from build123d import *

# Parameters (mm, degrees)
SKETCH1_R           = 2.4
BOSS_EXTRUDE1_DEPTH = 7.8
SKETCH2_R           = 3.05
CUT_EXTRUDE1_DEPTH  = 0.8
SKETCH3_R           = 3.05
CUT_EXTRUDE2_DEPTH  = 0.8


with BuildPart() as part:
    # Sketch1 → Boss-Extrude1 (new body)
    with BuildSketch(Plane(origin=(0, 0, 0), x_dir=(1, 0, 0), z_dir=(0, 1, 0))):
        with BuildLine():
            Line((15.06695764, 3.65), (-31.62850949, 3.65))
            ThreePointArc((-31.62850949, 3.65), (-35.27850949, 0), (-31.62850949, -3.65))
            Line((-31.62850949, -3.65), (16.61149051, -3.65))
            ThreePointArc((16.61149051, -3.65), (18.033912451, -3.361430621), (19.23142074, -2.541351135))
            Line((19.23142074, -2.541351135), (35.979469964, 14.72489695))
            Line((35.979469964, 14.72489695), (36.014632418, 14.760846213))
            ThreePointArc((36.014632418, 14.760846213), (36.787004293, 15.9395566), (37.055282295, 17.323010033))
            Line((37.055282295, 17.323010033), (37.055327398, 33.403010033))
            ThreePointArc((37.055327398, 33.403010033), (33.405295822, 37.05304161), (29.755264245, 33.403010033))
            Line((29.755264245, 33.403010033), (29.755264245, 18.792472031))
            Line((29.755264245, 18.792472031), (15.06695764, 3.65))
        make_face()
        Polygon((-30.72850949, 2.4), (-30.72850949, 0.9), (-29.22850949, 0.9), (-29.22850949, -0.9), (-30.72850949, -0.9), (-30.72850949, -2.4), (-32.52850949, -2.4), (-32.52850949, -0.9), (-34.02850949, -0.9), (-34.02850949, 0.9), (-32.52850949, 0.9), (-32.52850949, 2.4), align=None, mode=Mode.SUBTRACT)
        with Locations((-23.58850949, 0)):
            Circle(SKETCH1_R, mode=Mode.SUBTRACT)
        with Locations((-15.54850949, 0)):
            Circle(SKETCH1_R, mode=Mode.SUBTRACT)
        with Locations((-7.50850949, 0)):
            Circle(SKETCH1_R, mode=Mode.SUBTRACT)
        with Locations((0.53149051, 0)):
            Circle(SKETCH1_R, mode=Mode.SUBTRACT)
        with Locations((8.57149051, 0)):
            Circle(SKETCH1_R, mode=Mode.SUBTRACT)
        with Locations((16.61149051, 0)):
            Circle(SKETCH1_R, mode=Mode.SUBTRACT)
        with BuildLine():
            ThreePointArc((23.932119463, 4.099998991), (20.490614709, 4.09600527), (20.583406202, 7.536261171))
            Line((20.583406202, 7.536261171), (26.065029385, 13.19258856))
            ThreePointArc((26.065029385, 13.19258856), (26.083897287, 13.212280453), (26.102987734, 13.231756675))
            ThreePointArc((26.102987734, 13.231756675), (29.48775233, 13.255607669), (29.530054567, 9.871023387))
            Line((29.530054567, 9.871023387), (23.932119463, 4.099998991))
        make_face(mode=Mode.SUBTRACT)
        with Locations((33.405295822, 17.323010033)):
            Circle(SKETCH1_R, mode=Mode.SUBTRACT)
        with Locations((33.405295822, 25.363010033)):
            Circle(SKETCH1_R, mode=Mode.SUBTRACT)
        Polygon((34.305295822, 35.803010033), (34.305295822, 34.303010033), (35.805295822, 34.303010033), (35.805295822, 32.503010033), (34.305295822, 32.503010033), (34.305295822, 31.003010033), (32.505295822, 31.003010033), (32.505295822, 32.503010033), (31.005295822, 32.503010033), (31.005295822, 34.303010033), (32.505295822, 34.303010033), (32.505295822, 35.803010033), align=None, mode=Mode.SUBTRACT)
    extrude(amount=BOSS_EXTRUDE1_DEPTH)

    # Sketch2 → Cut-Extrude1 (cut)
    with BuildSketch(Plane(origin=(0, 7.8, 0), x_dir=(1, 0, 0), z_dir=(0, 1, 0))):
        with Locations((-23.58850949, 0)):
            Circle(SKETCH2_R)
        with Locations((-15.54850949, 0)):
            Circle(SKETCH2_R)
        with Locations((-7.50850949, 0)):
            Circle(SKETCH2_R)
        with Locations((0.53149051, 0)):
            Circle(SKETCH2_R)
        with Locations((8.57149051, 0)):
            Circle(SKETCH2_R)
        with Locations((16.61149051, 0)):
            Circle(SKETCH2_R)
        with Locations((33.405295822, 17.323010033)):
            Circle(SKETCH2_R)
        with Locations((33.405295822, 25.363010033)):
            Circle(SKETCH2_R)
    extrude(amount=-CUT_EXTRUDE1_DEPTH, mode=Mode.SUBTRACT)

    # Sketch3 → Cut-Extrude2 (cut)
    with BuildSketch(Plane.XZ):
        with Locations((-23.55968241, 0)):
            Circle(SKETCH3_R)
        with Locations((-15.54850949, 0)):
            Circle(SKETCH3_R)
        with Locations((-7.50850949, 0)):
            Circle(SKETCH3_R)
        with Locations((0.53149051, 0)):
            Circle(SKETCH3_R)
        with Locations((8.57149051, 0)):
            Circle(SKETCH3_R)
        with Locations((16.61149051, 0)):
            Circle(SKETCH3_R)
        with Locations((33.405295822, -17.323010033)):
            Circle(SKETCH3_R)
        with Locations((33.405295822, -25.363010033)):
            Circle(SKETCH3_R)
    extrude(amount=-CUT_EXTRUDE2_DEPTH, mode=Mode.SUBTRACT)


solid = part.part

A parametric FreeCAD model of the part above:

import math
import FreeCAD as App
import Part
import Sketcher
from FreeCAD import Vector

doc = App.newDocument("Part")
body = doc.addObject("PartDesign::Body", "Body")

# Sketch on XZ plane
sketch1 = body.newObject("Sketcher::SketchObject", "Sketch")
sketch1.AttachmentSupport = (doc.getObject("XZ_Plane"), [""])
sketch1.MapMode = "FlatFace"
sketch1.addGeometry(Part.LineSegment(Vector(15.066958, -3.65, 0), Vector(-31.628509, -3.65, 0)), False)
sketch1.addGeometry(Part.ArcOfCircle(Part.Circle(Vector(-31.628509, 0, 0), Vector(0, 0, 1), 3.65), math.radians(90), math.radians(270)), False)
sketch1.addGeometry(Part.LineSegment(Vector(-31.628509, 3.65, 0), Vector(16.611491, 3.65, 0)), False)
sketch1.addGeometry(Part.ArcOfCircle(Part.Circle(Vector(16.611491, 0, 0), Vector(0, 0, 1), 3.65), math.radians(44.127755), math.radians(90)), False)
sketch1.addGeometry(Part.LineSegment(Vector(19.231421, 2.541351, 0), Vector(35.97947, -14.724897, 0)), False)
sketch1.addGeometry(Part.LineSegment(Vector(35.97947, -14.724897, 0), Vector(36.014632, -14.760846, 0)), False)
sketch1.addGeometry(Part.ArcOfCircle(Part.Circle(Vector(33.405296, -17.313073, 0), Vector(0, 0, 1), 3.65), math.radians(-0.155984), math.radians(44.366082)), False)
sketch1.addGeometry(Part.LineSegment(Vector(37.055282, -17.32301, 0), Vector(37.055327, -33.40301, 0)), False)
sketch1.addGeometry(Part.ArcOfCircle(Part.Circle(Vector(33.405296, -33.40301, 0), Vector(0, 0, 1), 3.650032), math.radians(180), math.radians(360)), False)
sketch1.addGeometry(Part.LineSegment(Vector(29.755264, -33.40301, 0), Vector(29.755264, -18.792472, 0)), False)
sketch1.addGeometry(Part.LineSegment(Vector(29.755264, -18.792472, 0), Vector(15.066958, -3.65, 0)), False)
sketch1.addGeometry(Part.LineSegment(Vector(-32.528509, -2.4, 0), Vector(-30.728509, -2.4, 0)), False)
sketch1.addGeometry(Part.LineSegment(Vector(-30.728509, -2.4, 0), Vector(-30.728509, -0.9, 0)), False)
sketch1.addGeometry(Part.LineSegment(Vector(-30.728509, -0.9, 0), Vector(-29.228509, -0.9, 0)), False)
sketch1.addGeometry(Part.LineSegment(Vector(-29.228509, -0.9, 0), Vector(-29.228509, 0.9, 0)), False)
sketch1.addGeometry(Part.LineSegment(Vector(-29.228509, 0.9, 0), Vector(-30.728509, 0.9, 0)), False)
sketch1.addGeometry(Part.LineSegment(Vector(-30.728509, 0.9, 0), Vector(-30.728509, 2.4, 0)), False)
sketch1.addGeometry(Part.LineSegment(Vector(-30.728509, 2.4, 0), Vector(-32.528509, 2.4, 0)), False)
sketch1.addGeometry(Part.LineSegment(Vector(-32.528509, 2.4, 0), Vector(-32.528509, 0.9, 0)), False)
sketch1.addGeometry(Part.LineSegment(Vector(-32.528509, 0.9, 0), Vector(-34.028509, 0.9, 0)), False)
sketch1.addGeometry(Part.LineSegment(Vector(-34.028509, 0.9, 0), Vector(-34.028509, -0.9, 0)), False)
sketch1.addGeometry(Part.LineSegment(Vector(-34.028509, -0.9, 0), Vector(-32.528509, -0.9, 0)), False)
sketch1.addGeometry(Part.LineSegment(Vector(-32.528509, -0.9, 0), Vector(-32.528509, -2.4, 0)), False)
sketch1.addGeometry(Part.Circle(Vector(-23.588509, 0, 0), Vector(0, 0, 1), 2.4), False)
sketch1.addGeometry(Part.Circle(Vector(-15.548509, 0, 0), Vector(0, 0, 1), 2.4), False)
sketch1.addGeometry(Part.Circle(Vector(-7.508509, 0, 0), Vector(0, 0, 1), 2.4), False)
sketch1.addGeometry(Part.Circle(Vector(0.531491, 0, 0), Vector(0, 0, 1), 2.4), False)
sketch1.addGeometry(Part.Circle(Vector(8.571491, 0, 0), Vector(0, 0, 1), 2.4), False)
sketch1.addGeometry(Part.Circle(Vector(16.611491, 0, 0), Vector(0, 0, 1), 2.4), False)
sketch1.addGeometry(Part.LineSegment(Vector(29.530055, -9.871023, 0), Vector(23.932119, -4.099999, 0)), False)
sketch1.addGeometry(Part.ArcOfCircle(Part.Circle(Vector(22.209426, -5.771024, 0), Vector(0, 0, 1), 2.4), math.radians(44.127755), math.radians(227.350778)), False)
sketch1.addGeometry(Part.LineSegment(Vector(20.583406, -7.536261, 0), Vector(26.065029, -13.192589, 0)), False)
sketch1.addGeometry(Part.ArcOfCircle(Part.Circle(Vector(27.80736, -11.542049, 0), Vector(0, 0, 1), 2.399999), math.radians(-136.549716), math.radians(-135.247561)), False)
sketch1.addGeometry(Part.ArcOfCircle(Part.Circle(Vector(27.807361, -11.542049, 0), Vector(0, 0, 1), 2.4), math.radians(-135.247561), math.radians(44.127755)), False)
sketch1.addGeometry(Part.Circle(Vector(33.405296, -17.32301, 0), Vector(0, 0, 1), 2.4), False)
sketch1.addGeometry(Part.Circle(Vector(33.405296, -25.36301, 0), Vector(0, 0, 1), 2.4), False)
sketch1.addGeometry(Part.LineSegment(Vector(32.505296, -35.80301, 0), Vector(34.305296, -35.80301, 0)), False)
sketch1.addGeometry(Part.LineSegment(Vector(34.305296, -35.80301, 0), Vector(34.305296, -34.30301, 0)), False)
sketch1.addGeometry(Part.LineSegment(Vector(34.305296, -34.30301, 0), Vector(35.805296, -34.30301, 0)), False)
sketch1.addGeometry(Part.LineSegment(Vector(35.805296, -34.30301, 0), Vector(35.805296, -32.50301, 0)), False)
sketch1.addGeometry(Part.LineSegment(Vector(35.805296, -32.50301, 0), Vector(34.305296, -32.50301, 0)), False)
sketch1.addGeometry(Part.LineSegment(Vector(34.305296, -32.50301, 0), Vector(34.305296, -31.00301, 0)), False)
sketch1.addGeometry(Part.LineSegment(Vector(34.305296, -31.00301, 0), Vector(32.505296, -31.00301, 0)), False)
sketch1.addGeometry(Part.LineSegment(Vector(32.505296, -31.00301, 0), Vector(32.505296, -32.50301, 0)), False)
sketch1.addGeometry(Part.LineSegment(Vector(32.505296, -32.50301, 0), Vector(31.005296, -32.50301, 0)), False)
sketch1.addGeometry(Part.LineSegment(Vector(31.005296, -32.50301, 0), Vector(31.005296, -34.30301, 0)), False)
sketch1.addGeometry(Part.LineSegment(Vector(31.005296, -34.30301, 0), Vector(32.505296, -34.30301, 0)), False)
sketch1.addGeometry(Part.LineSegment(Vector(32.505296, -34.30301, 0), Vector(32.505296, -35.80301, 0)), False)
sketch1.addConstraint(Sketcher.Constraint("Coincident", 0, 2, 1, 2))
sketch1.addConstraint(Sketcher.Constraint("Coincident", 1, 1, 2, 1))
sketch1.addConstraint(Sketcher.Constraint("Coincident", 2, 2, 3, 2))
sketch1.addConstraint(Sketcher.Constraint("Coincident", 3, 1, 4, 1))
sketch1.addConstraint(Sketcher.Constraint("Coincident", 4, 2, 5, 1))
sketch1.addConstraint(Sketcher.Constraint("Coincident", 5, 2, 6, 2))
sketch1.addConstraint(Sketcher.Constraint("Coincident", 6, 1, 7, 1))
sketch1.addConstraint(Sketcher.Constraint("Coincident", 7, 2, 8, 2))
sketch1.addConstraint(Sketcher.Constraint("Coincident", 8, 1, 9, 1))
sketch1.addConstraint(Sketcher.Constraint("Coincident", 9, 2, 10, 1))
sketch1.addConstraint(Sketcher.Constraint("Coincident", 10, 2, 0, 1))
sketch1.addConstraint(Sketcher.Constraint("Coincident", 11, 2, 12, 1))
sketch1.addConstraint(Sketcher.Constraint("Coincident", 12, 2, 13, 1))
sketch1.addConstraint(Sketcher.Constraint("Coincident", 13, 2, 14, 1))
sketch1.addConstraint(Sketcher.Constraint("Coincident", 14, 2, 15, 1))
sketch1.addConstraint(Sketcher.Constraint("Coincident", 15, 2, 16, 1))
sketch1.addConstraint(Sketcher.Constraint("Coincident", 16, 2, 17, 1))
sketch1.addConstraint(Sketcher.Constraint("Coincident", 17, 2, 18, 1))
sketch1.addConstraint(Sketcher.Constraint("Coincident", 18, 2, 19, 1))
sketch1.addConstraint(Sketcher.Constraint("Coincident", 19, 2, 20, 1))
sketch1.addConstraint(Sketcher.Constraint("Coincident", 20, 2, 21, 1))
sketch1.addConstraint(Sketcher.Constraint("Coincident", 21, 2, 22, 1))
sketch1.addConstraint(Sketcher.Constraint("Coincident", 22, 2, 11, 1))
sketch1.addConstraint(Sketcher.Constraint("Coincident", 29, 2, 30, 1))
sketch1.addConstraint(Sketcher.Constraint("Coincident", 30, 2, 31, 1))
sketch1.addConstraint(Sketcher.Constraint("Coincident", 31, 2, 32, 1))
sketch1.addConstraint(Sketcher.Constraint("Coincident", 32, 2, 33, 1))
sketch1.addConstraint(Sketcher.Constraint("Coincident", 33, 2, 29, 1))
sketch1.addConstraint(Sketcher.Constraint("Coincident", 36, 2, 37, 1))
sketch1.addConstraint(Sketcher.Constraint("Coincident", 37, 2, 38, 1))
sketch1.addConstraint(Sketcher.Constraint("Coincident", 38, 2, 39, 1))
sketch1.addConstraint(Sketcher.Constraint("Coincident", 39, 2, 40, 1))
sketch1.addConstraint(Sketcher.Constraint("Coincident", 40, 2, 41, 1))
sketch1.addConstraint(Sketcher.Constraint("Coincident", 41, 2, 42, 1))
sketch1.addConstraint(Sketcher.Constraint("Coincident", 42, 2, 43, 1))
sketch1.addConstraint(Sketcher.Constraint("Coincident", 43, 2, 44, 1))
sketch1.addConstraint(Sketcher.Constraint("Coincident", 44, 2, 45, 1))
sketch1.addConstraint(Sketcher.Constraint("Coincident", 45, 2, 46, 1))
sketch1.addConstraint(Sketcher.Constraint("Coincident", 46, 2, 47, 1))
sketch1.addConstraint(Sketcher.Constraint("Coincident", 47, 2, 36, 1))
sketch1.addConstraint(Sketcher.Constraint("Horizontal", 0))
sketch1.addConstraint(Sketcher.Constraint("Horizontal", 2))
sketch1.addConstraint(Sketcher.Constraint("Vertical", 9))
sketch1.addConstraint(Sketcher.Constraint("Horizontal", 11))
sketch1.addConstraint(Sketcher.Constraint("Vertical", 12))
sketch1.addConstraint(Sketcher.Constraint("Horizontal", 13))
sketch1.addConstraint(Sketcher.Constraint("Vertical", 14))
sketch1.addConstraint(Sketcher.Constraint("Horizontal", 15))
sketch1.addConstraint(Sketcher.Constraint("Vertical", 16))
sketch1.addConstraint(Sketcher.Constraint("Horizontal", 17))
sketch1.addConstraint(Sketcher.Constraint("Vertical", 18))
sketch1.addConstraint(Sketcher.Constraint("Horizontal", 19))
sketch1.addConstraint(Sketcher.Constraint("Vertical", 20))
sketch1.addConstraint(Sketcher.Constraint("Horizontal", 21))
sketch1.addConstraint(Sketcher.Constraint("Vertical", 22))
sketch1.addConstraint(Sketcher.Constraint("Horizontal", 36))
sketch1.addConstraint(Sketcher.Constraint("Vertical", 37))
sketch1.addConstraint(Sketcher.Constraint("Horizontal", 38))
sketch1.addConstraint(Sketcher.Constraint("Vertical", 39))
sketch1.addConstraint(Sketcher.Constraint("Horizontal", 40))
sketch1.addConstraint(Sketcher.Constraint("Vertical", 41))
sketch1.addConstraint(Sketcher.Constraint("Horizontal", 42))
sketch1.addConstraint(Sketcher.Constraint("Vertical", 43))
sketch1.addConstraint(Sketcher.Constraint("Horizontal", 44))
sketch1.addConstraint(Sketcher.Constraint("Vertical", 45))
sketch1.addConstraint(Sketcher.Constraint("Horizontal", 46))
sketch1.addConstraint(Sketcher.Constraint("Vertical", 47))
sketch1.addConstraint(Sketcher.Constraint("Coincident", 28, 3, 3, 3))
sketch1.addConstraint(Sketcher.Constraint("Coincident", 33, 3, 32, 3))
sketch1.addConstraint(Sketcher.Constraint("PointOnObject", 1, 3, -1))
sketch1.addConstraint(Sketcher.Constraint("PointOnObject", 3, 3, -1))
sketch1.addConstraint(Sketcher.Constraint("PointOnObject", 23, 3, -1))
sketch1.addConstraint(Sketcher.Constraint("PointOnObject", 24, 3, -1))
sketch1.addConstraint(Sketcher.Constraint("PointOnObject", 25, 3, -1))
sketch1.addConstraint(Sketcher.Constraint("PointOnObject", 26, 3, -1))
sketch1.addConstraint(Sketcher.Constraint("PointOnObject", 27, 3, -1))
sketch1.addConstraint(Sketcher.Constraint("Diameter", 23, 4.8))
sketch1.addConstraint(Sketcher.Constraint("Diameter", 24, 4.8))
sketch1.addConstraint(Sketcher.Constraint("Diameter", 25, 4.8))
sketch1.addConstraint(Sketcher.Constraint("Diameter", 26, 4.8))
sketch1.addConstraint(Sketcher.Constraint("Diameter", 27, 4.8))
sketch1.addConstraint(Sketcher.Constraint("Diameter", 28, 4.8))
sketch1.addConstraint(Sketcher.Constraint("Diameter", 34, 4.8))
sketch1.addConstraint(Sketcher.Constraint("Diameter", 35, 4.8))
sketch1.addConstraint(Sketcher.Constraint("Radius", 30, 2.4))
sketch1.addConstraint(Sketcher.Constraint("Radius", 32, 2.399999))
sketch1.addConstraint(Sketcher.Constraint("Radius", 1, 3.65))
sketch1.addConstraint(Sketcher.Constraint("Radius", 6, 3.65))
sketch1.addConstraint(Sketcher.Constraint("DistanceX", 11, 1, 11, 2, 1.8))
sketch1.addConstraint(Sketcher.Constraint("DistanceX", 13, 1, 13, 2, 1.5))
sketch1.addConstraint(Sketcher.Constraint("DistanceX", 15, 2, 15, 1, 1.5))
sketch1.addConstraint(Sketcher.Constraint("DistanceX", 17, 2, 17, 1, 1.8))
sketch1.addConstraint(Sketcher.Constraint("DistanceX", 19, 2, 19, 1, 1.5))
sketch1.addConstraint(Sketcher.Constraint("DistanceX", 36, 1, 36, 2, 1.8))
sketch1.addConstraint(Sketcher.Constraint("DistanceX", 38, 1, 38, 2, 1.5))
sketch1.addConstraint(Sketcher.Constraint("DistanceX", 40, 2, 40, 1, 1.5))
sketch1.addConstraint(Sketcher.Constraint("DistanceX", 42, 2, 42, 1, 1.8))
sketch1.addConstraint(Sketcher.Constraint("DistanceX", 44, 2, 44, 1, 1.5))
sketch1.addConstraint(Sketcher.Constraint("DistanceY", 12, 1, 12, 2, 1.5))
sketch1.addConstraint(Sketcher.Constraint("DistanceY", 14, 1, 14, 2, 1.8))
sketch1.addConstraint(Sketcher.Constraint("DistanceY", 16, 1, 16, 2, 1.5))
sketch1.addConstraint(Sketcher.Constraint("DistanceY", 18, 2, 18, 1, 1.5))
sketch1.addConstraint(Sketcher.Constraint("DistanceY", 20, 2, 20, 1, 1.8))
sketch1.addConstraint(Sketcher.Constraint("DistanceY", 37, 1, 37, 2, 1.5))
sketch1.addConstraint(Sketcher.Constraint("DistanceY", 39, 1, 39, 2, 1.8))
sketch1.addConstraint(Sketcher.Constraint("DistanceY", 41, 1, 41, 2, 1.5))
sketch1.addConstraint(Sketcher.Constraint("DistanceY", 43, 2, 43, 1, 1.5))
sketch1.addConstraint(Sketcher.Constraint("DistanceY", 45, 2, 45, 1, 1.8))
sketch1.addConstraint(Sketcher.Constraint("DistanceX", 2, 1, 2, 2, 48.24))
sketch1.addConstraint(Sketcher.Constraint("DistanceY", 11, 2, -1, 1, 2.4))
sketch1.addConstraint(Sketcher.Constraint("DistanceY", 29, 2, -1, 1, 4.099999))
sketch1.addConstraint(Sketcher.Constraint("DistanceX", 23, 3, 3, 3, 40.2))
sketch1.addConstraint(Sketcher.Constraint("DistanceX", 0, 2, 11, 2, 0.9))
sketch1.addConstraint(Sketcher.Constraint("DistanceX", 1, 3, 11, 2, 0.9))
sketch1.addConstraint(Sketcher.Constraint("DistanceX", 1, 1, 11, 2, 0.9))
sketch1.addConstraint(Sketcher.Constraint("DistanceX", 8, 3, 36, 2, 0.9))
sketch1.addConstraint(Sketcher.Constraint("DistanceY", 36, 2, 8, 3, 2.4))
sketch1.addConstraint(Sketcher.Constraint("DistanceY", 36, 2, 7, 2, 2.4))
sketch1.addConstraint(Sketcher.Constraint("DistanceY", 36, 2, 8, 1, 2.4))
sketch1.addConstraint(Sketcher.Constraint("DistanceX", 35, 3, 36, 2, 0.9))
sketch1.addConstraint(Sketcher.Constraint("Distance", 7, 16.08))
sketch1.addConstraint(Sketcher.Constraint("Distance", 29, 8.04))
sketch1.addConstraint(Sketcher.Constraint("Radius", 8, 3.650032))
sketch1.addConstraint(Sketcher.Constraint("DistanceX", 1, 3, 3, 3, 48.24))
sketch1.addConstraint(Sketcher.Constraint("DistanceX", 23, 3, 24, 3, 8.04))
sketch1.addConstraint(Sketcher.Constraint("DistanceX", 24, 3, 25, 3, 8.04))
sketch1.addConstraint(Sketcher.Constraint("DistanceX", 25, 3, 26, 3, 8.04))
sketch1.addConstraint(Sketcher.Constraint("DistanceX", 27, 3, 3, 3, 8.04))
sketch1.addConstraint(Sketcher.Constraint("DistanceY", 8, 3, 34, 3, 16.08))
sketch1.addConstraint(Sketcher.Constraint("DistanceY", 35, 3, 34, 3, 8.04))
sketch1.addConstraint(Sketcher.Constraint("DistanceY", 9, 1, 9, 2, 14.610538))
sketch1.addConstraint(Sketcher.Constraint("DistanceY", 9, 2, 6, 3, 1.479399))
sketch1.addConstraint(Sketcher.Constraint("DistanceX", 3, 1, 29, 2, 4.700699))
sketch1.addConstraint(Sketcher.Constraint("Distance", 4, 24.054531))
sketch1.addConstraint(Sketcher.Constraint("Distance", 10, 21.09599))
sketch1.addConstraint(Sketcher.Constraint("Distance", 31, 7.876689))
sketch1.addConstraint(Sketcher.Constraint("DistanceX", 0, 2, 0, 1, 46.695467))
sketch1.addConstraint(Sketcher.Constraint("DistanceX", 1, 3, -1, 1, 31.628509))
sketch1.addConstraint(Sketcher.Constraint("DistanceY", 8, 3, -1, 1, 33.40301))
sketch1.addConstraint(Sketcher.Constraint("DistanceX", -1, 1, 32, 3, 27.80736))
sketch1.addConstraint(Sketcher.Constraint("DistanceY", 32, 3, -1, 1, 11.542049))
sketch1.addConstraint(Sketcher.Constraint("DistanceX", -1, 1, 3, 1, 19.231421))
sketch1.addConstraint(Sketcher.Constraint("DistanceX", -1, 1, 4, 2, 35.97947))
sketch1.addConstraint(Sketcher.Constraint("DistanceY", 30, 2, -1, 1, 7.536261))
sketch1.addConstraint(Sketcher.Constraint("DistanceX", -1, 1, 31, 2, 26.065029))
sketch1.addConstraint(Sketcher.Constraint("DistanceX", 30, 3, 6, 3, 11.19587))
sketch1.addConstraint(Sketcher.Constraint("DistanceX", 30, 3, 34, 3, 11.19587))
sketch1.addConstraint(Sketcher.Constraint("DistanceY", 5, 2, 4, 2, 0.035949))
sketch1.addConstraint(Sketcher.Constraint("DistanceX", 31, 2, 32, 2, 0.037958))
pad1 = body.newObject("PartDesign::Pad", "Pad")
pad1.Profile = sketch1
pad1.Length = 7.8
pad1.Reversed = True

# Sketch on XZ plane
sketch2 = body.newObject("Sketcher::SketchObject", "Sketch001")
sketch2.AttachmentSupport = (doc.getObject("XZ_Plane"), [""])
sketch2.MapMode = "FlatFace"
sketch2.AttachmentOffset = App.Placement(Vector(0, 0, -7.8), App.Rotation())
sketch2.addGeometry(Part.Circle(Vector(-23.588509, 0, 0), Vector(0, 0, 1), 3.05), False)
sketch2.addGeometry(Part.Circle(Vector(-15.548509, 0, 0), Vector(0, 0, 1), 3.05), False)
sketch2.addGeometry(Part.Circle(Vector(-7.508509, 0, 0), Vector(0, 0, 1), 3.05), False)
sketch2.addGeometry(Part.Circle(Vector(0.531491, 0, 0), Vector(0, 0, 1), 3.05), False)
sketch2.addGeometry(Part.Circle(Vector(8.571491, 0, 0), Vector(0, 0, 1), 3.05), False)
sketch2.addGeometry(Part.Circle(Vector(16.611491, 0, 0), Vector(0, 0, 1), 3.05), False)
sketch2.addGeometry(Part.Circle(Vector(33.405296, -17.32301, 0), Vector(0, 0, 1), 3.05), False)
sketch2.addGeometry(Part.Circle(Vector(33.405296, -25.36301, 0), Vector(0, 0, 1), 3.05), False)
sketch2.addConstraint(Sketcher.Constraint("Equal", 0, 1))
sketch2.addConstraint(Sketcher.Constraint("Equal", 1, 2))
sketch2.addConstraint(Sketcher.Constraint("Equal", 2, 3))
sketch2.addConstraint(Sketcher.Constraint("Equal", 3, 4))
sketch2.addConstraint(Sketcher.Constraint("Equal", 4, 5))
sketch2.addConstraint(Sketcher.Constraint("Equal", 5, 6))
sketch2.addConstraint(Sketcher.Constraint("Equal", 6, 7))
sketch2.addConstraint(Sketcher.Constraint("PointOnObject", 0, 3, -1))
sketch2.addConstraint(Sketcher.Constraint("PointOnObject", 1, 3, -1))
sketch2.addConstraint(Sketcher.Constraint("PointOnObject", 2, 3, -1))
sketch2.addConstraint(Sketcher.Constraint("PointOnObject", 3, 3, -1))
sketch2.addConstraint(Sketcher.Constraint("PointOnObject", 4, 3, -1))
sketch2.addConstraint(Sketcher.Constraint("PointOnObject", 5, 3, -1))
sketch2.addConstraint(Sketcher.Constraint("Vertical", 6, 3, 7, 3))
sketch2.addConstraint(Sketcher.Constraint("Diameter", 0, 6.1))
sketch2.addConstraint(Sketcher.Constraint("DistanceX", 0, 3, 5, 3, 40.2))
sketch2.addConstraint(Sketcher.Constraint("DistanceX", 0, 3, 1, 3, 8.04))
sketch2.addConstraint(Sketcher.Constraint("DistanceX", 1, 3, 2, 3, 8.04))
sketch2.addConstraint(Sketcher.Constraint("DistanceX", 2, 3, 3, 3, 8.04))
sketch2.addConstraint(Sketcher.Constraint("DistanceX", 3, 3, 4, 3, 8.04))
sketch2.addConstraint(Sketcher.Constraint("DistanceY", 7, 3, 6, 3, 8.04))
sketch2.addConstraint(Sketcher.Constraint("DistanceX", 0, 3, -1, 1, 23.588509))
sketch2.addConstraint(Sketcher.Constraint("DistanceY", 6, 3, -1, 1, 17.32301))
sketch2.addConstraint(Sketcher.Constraint("DistanceX", -1, 1, 6, 3, 33.405296))
pocket1 = body.newObject("PartDesign::Pocket", "Pocket")
pocket1.Profile = sketch2
pocket1.Length = 0.8
pocket1.Reversed = True

# Sketch on XZ plane
sketch3 = body.newObject("Sketcher::SketchObject", "Sketch002")
sketch3.AttachmentSupport = (doc.getObject("XZ_Plane"), [""])
sketch3.MapMode = "FlatFace"
sketch3.addGeometry(Part.Circle(Vector(-23.559682, 0, 0), Vector(0, 0, 1), 3.05), False)
sketch3.addGeometry(Part.Circle(Vector(-15.548509, 0, 0), Vector(0, 0, 1), 3.05), False)
sketch3.addGeometry(Part.Circle(Vector(-7.508509, 0, 0), Vector(0, 0, 1), 3.05), False)
sketch3.addGeometry(Part.Circle(Vector(0.531491, 0, 0), Vector(0, 0, 1), 3.05), False)
sketch3.addGeometry(Part.Circle(Vector(8.571491, 0, 0), Vector(0, 0, 1), 3.05), False)
sketch3.addGeometry(Part.Circle(Vector(16.611491, 0, 0), Vector(0, 0, 1), 3.05), False)
sketch3.addGeometry(Part.Circle(Vector(33.405296, -17.32301, 0), Vector(0, 0, 1), 3.05), False)
sketch3.addGeometry(Part.Circle(Vector(33.405296, -25.36301, 0), Vector(0, 0, 1), 3.05), False)
sketch3.addConstraint(Sketcher.Constraint("Equal", 0, 1))
sketch3.addConstraint(Sketcher.Constraint("Equal", 1, 2))
sketch3.addConstraint(Sketcher.Constraint("Equal", 2, 3))
sketch3.addConstraint(Sketcher.Constraint("Equal", 3, 4))
sketch3.addConstraint(Sketcher.Constraint("Equal", 4, 5))
sketch3.addConstraint(Sketcher.Constraint("Equal", 5, 6))
sketch3.addConstraint(Sketcher.Constraint("Equal", 6, 7))
sketch3.addConstraint(Sketcher.Constraint("PointOnObject", 0, 3, -1))
sketch3.addConstraint(Sketcher.Constraint("PointOnObject", 1, 3, -1))
sketch3.addConstraint(Sketcher.Constraint("PointOnObject", 2, 3, -1))
sketch3.addConstraint(Sketcher.Constraint("PointOnObject", 3, 3, -1))
sketch3.addConstraint(Sketcher.Constraint("PointOnObject", 4, 3, -1))
sketch3.addConstraint(Sketcher.Constraint("PointOnObject", 5, 3, -1))
sketch3.addConstraint(Sketcher.Constraint("Vertical", 6, 3, 7, 3))
sketch3.addConstraint(Sketcher.Constraint("Diameter", 0, 6.1))
sketch3.addConstraint(Sketcher.Constraint("DistanceX", 1, 3, 2, 3, 8.04))
sketch3.addConstraint(Sketcher.Constraint("DistanceX", 2, 3, 3, 3, 8.04))
sketch3.addConstraint(Sketcher.Constraint("DistanceX", 3, 3, 4, 3, 8.04))
sketch3.addConstraint(Sketcher.Constraint("DistanceX", 4, 3, 5, 3, 8.04))
sketch3.addConstraint(Sketcher.Constraint("DistanceY", 7, 3, 6, 3, 8.04))
sketch3.addConstraint(Sketcher.Constraint("DistanceX", 1, 3, -1, 1, 15.548509))
sketch3.addConstraint(Sketcher.Constraint("DistanceY", 6, 3, -1, 1, 17.32301))
sketch3.addConstraint(Sketcher.Constraint("DistanceX", 0, 3, -1, 1, 23.559682))
sketch3.addConstraint(Sketcher.Constraint("DistanceX", -1, 1, 6, 3, 33.405296))
pocket2 = body.newObject("PartDesign::Pocket", "Pocket001")
pocket2.Profile = sketch3
pocket2.Length = 0.8

doc.recompute()
